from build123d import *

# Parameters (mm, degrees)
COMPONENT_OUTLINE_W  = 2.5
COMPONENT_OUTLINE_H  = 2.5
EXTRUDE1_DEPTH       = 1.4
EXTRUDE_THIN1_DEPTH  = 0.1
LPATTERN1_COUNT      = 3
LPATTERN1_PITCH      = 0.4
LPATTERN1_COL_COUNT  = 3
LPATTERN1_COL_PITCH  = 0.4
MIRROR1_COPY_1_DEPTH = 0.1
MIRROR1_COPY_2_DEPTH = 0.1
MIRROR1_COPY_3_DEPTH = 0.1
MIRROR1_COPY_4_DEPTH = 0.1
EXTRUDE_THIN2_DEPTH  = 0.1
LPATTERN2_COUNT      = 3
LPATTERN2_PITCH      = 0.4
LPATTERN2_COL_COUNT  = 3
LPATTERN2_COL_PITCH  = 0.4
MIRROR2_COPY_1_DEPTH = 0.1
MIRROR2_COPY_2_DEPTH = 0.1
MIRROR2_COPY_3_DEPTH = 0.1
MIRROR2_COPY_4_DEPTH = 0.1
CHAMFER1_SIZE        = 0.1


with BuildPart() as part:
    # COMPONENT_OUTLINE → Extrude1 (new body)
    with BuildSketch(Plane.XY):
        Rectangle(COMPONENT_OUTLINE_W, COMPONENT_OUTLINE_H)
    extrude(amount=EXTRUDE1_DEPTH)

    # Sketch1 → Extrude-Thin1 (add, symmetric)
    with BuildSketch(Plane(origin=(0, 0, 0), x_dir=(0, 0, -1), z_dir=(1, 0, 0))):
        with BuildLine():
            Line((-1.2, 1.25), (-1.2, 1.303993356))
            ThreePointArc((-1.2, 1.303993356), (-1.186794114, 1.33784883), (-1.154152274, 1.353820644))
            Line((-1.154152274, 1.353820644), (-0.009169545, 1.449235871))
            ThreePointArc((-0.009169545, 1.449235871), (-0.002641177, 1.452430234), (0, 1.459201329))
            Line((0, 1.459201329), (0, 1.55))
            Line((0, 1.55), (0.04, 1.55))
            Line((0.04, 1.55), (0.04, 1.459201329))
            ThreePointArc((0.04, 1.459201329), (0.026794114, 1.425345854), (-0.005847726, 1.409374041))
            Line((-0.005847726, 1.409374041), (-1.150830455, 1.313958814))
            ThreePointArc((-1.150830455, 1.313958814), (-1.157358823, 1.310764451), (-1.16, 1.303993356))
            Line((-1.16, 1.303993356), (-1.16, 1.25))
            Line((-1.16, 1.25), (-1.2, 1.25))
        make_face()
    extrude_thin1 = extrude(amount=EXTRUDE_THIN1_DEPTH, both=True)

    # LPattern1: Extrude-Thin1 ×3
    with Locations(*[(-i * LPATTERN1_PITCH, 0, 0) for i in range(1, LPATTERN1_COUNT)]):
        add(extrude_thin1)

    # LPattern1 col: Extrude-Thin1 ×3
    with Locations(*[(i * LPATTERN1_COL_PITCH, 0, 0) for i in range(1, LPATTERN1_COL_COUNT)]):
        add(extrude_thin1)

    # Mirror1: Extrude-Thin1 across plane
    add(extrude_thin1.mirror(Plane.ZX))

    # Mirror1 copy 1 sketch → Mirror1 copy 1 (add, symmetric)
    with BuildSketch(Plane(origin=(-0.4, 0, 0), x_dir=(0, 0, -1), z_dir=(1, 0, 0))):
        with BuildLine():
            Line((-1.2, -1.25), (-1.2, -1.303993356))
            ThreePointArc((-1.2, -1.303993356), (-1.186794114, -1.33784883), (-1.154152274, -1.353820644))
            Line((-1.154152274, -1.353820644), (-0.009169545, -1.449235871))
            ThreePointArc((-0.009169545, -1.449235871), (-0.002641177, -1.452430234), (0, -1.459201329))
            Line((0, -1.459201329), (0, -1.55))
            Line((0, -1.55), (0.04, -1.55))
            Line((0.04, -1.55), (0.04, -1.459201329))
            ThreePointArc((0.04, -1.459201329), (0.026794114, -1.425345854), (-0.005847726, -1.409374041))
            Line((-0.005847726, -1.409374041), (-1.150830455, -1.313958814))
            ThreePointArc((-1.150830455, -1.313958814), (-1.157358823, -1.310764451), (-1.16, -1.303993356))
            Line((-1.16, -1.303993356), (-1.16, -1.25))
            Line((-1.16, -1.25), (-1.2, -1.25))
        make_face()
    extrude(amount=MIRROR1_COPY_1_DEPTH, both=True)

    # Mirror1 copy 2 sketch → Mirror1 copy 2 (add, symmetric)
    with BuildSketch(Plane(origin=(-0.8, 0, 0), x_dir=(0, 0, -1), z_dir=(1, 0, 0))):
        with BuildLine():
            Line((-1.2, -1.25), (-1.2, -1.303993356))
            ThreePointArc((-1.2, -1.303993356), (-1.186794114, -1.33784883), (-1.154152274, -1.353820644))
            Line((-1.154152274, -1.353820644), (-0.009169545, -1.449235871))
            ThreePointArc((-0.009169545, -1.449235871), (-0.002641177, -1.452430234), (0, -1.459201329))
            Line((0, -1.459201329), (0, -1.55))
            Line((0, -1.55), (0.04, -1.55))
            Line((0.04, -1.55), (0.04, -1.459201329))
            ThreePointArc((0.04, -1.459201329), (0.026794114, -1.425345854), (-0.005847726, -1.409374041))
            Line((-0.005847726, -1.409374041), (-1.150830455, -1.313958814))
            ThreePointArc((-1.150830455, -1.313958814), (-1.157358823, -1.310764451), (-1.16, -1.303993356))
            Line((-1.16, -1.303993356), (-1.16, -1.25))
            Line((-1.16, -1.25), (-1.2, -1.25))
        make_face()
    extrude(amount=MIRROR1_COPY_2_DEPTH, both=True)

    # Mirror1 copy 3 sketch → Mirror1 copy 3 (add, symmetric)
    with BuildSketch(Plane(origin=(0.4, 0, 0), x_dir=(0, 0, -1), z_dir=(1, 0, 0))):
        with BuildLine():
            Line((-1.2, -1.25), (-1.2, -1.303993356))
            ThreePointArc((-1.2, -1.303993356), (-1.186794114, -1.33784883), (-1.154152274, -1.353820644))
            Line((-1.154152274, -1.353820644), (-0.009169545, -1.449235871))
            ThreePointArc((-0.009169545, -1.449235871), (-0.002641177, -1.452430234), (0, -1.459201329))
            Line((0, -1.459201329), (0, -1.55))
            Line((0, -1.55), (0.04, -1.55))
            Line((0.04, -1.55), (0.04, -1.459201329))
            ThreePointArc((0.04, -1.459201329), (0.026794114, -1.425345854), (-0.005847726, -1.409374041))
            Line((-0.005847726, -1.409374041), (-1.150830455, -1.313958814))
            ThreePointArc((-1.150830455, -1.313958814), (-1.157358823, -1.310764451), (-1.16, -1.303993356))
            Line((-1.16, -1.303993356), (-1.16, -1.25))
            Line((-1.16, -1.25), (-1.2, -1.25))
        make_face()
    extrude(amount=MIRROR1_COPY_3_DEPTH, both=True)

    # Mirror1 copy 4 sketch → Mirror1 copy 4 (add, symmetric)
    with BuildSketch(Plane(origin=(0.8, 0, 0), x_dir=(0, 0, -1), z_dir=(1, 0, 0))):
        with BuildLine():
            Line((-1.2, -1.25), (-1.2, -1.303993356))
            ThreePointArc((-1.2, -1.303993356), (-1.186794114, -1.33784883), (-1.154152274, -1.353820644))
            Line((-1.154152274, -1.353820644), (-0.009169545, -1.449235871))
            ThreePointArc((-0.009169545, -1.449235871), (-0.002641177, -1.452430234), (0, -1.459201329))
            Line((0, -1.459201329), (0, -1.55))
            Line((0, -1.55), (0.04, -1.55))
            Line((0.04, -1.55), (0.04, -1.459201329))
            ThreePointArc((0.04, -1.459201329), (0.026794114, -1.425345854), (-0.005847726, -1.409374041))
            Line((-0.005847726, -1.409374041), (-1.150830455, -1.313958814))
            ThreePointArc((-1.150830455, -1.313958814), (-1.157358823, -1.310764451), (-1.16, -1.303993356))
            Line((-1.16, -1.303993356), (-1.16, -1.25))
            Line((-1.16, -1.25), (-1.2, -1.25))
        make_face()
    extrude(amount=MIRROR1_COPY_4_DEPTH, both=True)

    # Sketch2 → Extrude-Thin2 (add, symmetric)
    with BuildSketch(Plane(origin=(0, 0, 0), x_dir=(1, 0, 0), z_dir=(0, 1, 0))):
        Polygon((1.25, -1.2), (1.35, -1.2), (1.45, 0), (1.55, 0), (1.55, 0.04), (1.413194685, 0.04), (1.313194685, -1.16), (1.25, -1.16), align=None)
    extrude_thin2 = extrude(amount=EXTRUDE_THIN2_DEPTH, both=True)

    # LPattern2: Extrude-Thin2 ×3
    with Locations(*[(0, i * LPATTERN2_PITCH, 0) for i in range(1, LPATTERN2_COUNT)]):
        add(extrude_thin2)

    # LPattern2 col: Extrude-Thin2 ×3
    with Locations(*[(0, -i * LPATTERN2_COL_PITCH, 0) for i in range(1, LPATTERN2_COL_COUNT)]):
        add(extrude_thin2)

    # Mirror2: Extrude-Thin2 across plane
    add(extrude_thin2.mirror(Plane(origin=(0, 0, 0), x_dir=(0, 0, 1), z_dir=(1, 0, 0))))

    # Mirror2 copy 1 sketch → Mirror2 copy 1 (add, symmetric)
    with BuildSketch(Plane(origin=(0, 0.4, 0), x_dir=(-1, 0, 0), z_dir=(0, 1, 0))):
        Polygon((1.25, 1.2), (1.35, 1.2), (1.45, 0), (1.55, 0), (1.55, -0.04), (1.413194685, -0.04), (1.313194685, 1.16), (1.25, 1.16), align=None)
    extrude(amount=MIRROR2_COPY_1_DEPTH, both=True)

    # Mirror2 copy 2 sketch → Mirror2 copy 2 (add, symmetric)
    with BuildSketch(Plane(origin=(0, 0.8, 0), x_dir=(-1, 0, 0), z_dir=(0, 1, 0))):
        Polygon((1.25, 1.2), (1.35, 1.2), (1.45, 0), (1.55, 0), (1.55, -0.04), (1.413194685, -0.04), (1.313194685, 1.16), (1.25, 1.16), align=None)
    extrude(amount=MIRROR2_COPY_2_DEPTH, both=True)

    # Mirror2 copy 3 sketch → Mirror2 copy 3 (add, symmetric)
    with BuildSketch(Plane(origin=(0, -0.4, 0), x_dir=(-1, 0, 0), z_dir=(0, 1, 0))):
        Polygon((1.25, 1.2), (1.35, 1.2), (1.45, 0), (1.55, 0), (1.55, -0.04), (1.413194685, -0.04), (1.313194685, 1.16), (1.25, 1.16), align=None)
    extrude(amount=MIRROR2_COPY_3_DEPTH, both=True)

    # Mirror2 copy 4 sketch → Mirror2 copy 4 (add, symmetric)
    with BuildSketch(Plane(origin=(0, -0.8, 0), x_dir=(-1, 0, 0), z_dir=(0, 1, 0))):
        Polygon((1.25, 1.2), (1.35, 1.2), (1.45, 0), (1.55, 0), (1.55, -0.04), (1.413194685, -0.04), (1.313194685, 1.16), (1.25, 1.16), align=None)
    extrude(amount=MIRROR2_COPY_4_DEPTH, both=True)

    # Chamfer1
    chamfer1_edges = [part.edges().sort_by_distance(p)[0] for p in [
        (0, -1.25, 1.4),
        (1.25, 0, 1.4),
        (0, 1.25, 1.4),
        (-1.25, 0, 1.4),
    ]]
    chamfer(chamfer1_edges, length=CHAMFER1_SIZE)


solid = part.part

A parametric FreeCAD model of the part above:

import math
import FreeCAD as App
import Part
import Sketcher

V = App.Vector
Q = App.Units.Quantity


def edges_at(feature, points):
    """Names of the edges that pass closest to the given points."""
    edges = feature.Shape.Edges
    near = lambda p: min(range(len(edges)), key=lambda i: edges[i].distToShape(Part.Vertex(*p))[0])
    return sorted({f"Edge{near(p) + 1}" for p in points})

doc = App.newDocument("Part")
body = doc.addObject("PartDesign::Body", "Body")

# Sketch on XY plane
sketch1 = doc.addObject("Sketcher::SketchObject", "Sketch")
body.addObject(sketch1)
sketch1.AttachmentSupport = (doc.XY_Plane, [""])
sketch1.MapMode = "FlatFace"
sketch1.addGeometry(Part.LineSegment(V(-1.25, 1.25, 0), V(-1.25, -1.25, 0)), False)
sketch1.addGeometry(Part.LineSegment(V(-1.25, -1.25, 0), V(1.25, -1.25, 0)), False)
sketch1.addGeometry(Part.LineSegment(V(1.25, -1.25, 0), V(1.25, 1.25, 0)), False)
sketch1.addGeometry(Part.LineSegment(V(1.25, 1.25, 0), V(-1.25, 1.25, 0)), False)
sketch1.addConstraint(Sketcher.Constraint("Coincident", 0, 2, 1, 1))
sketch1.addConstraint(Sketcher.Constraint("Coincident", 1, 2, 2, 1))
sketch1.addConstraint(Sketcher.Constraint("Coincident", 2, 2, 3, 1))
sketch1.addConstraint(Sketcher.Constraint("Coincident", 3, 2, 0, 1))
sketch1.addConstraint(Sketcher.Constraint("Vertical", 0))
sketch1.addConstraint(Sketcher.Constraint("Horizontal", 1))
sketch1.addConstraint(Sketcher.Constraint("Vertical", 2))
sketch1.addConstraint(Sketcher.Constraint("Horizontal", 3))
sketch1.addConstraint(Sketcher.Constraint("Symmetric", 0, 2, 2, 2, -1, 1))
sketch1.addConstraint(Sketcher.Constraint("Equal", 3, 0))
sketch1.addConstraint(Sketcher.Constraint("DistanceX", 1, 1, 1, 2, Q("2.5 mm")))
pad1 = doc.addObject("PartDesign::Pad", "Pad")
body.addObject(pad1)
pad1.Profile = sketch1
pad1.Length = 1.4

# Sketch on YZ plane
sketch2 = doc.addObject("Sketcher::SketchObject", "Sketch001")
body.addObject(sketch2)
sketch2.AttachmentSupport = (doc.YZ_Plane, [""])
sketch2.MapMode = "FlatFace"
sketch2.addGeometry(Part.LineSegment(V(1.303993, 1.2, 0), V(1.25, 1.2, 0)), False)
sketch2.addGeometry(Part.LineSegment(V(1.25, 1.2, 0), V(1.25, 1.16, 0)), False)
sketch2.addGeometry(Part.LineSegment(V(1.25, 1.16, 0), V(1.303993, 1.16, 0)), False)
sketch2.addGeometry(Part.ArcOfCircle(Part.Circle(V(1.303993, 1.15, 0), V(0, 0, 1), 0.01), math.radians(4.763643), math.radians(90)), False)
sketch2.addGeometry(Part.LineSegment(V(1.313959, 1.15083, 0), V(1.409374, 0.005848, 0)), False)
sketch2.addGeometry(Part.ArcOfCircle(Part.Circle(V(1.459201, 0.01, 0), V(0, 0, 1), 0.05), math.radians(-175.236358), math.radians(-90)), False)
sketch2.addGeometry(Part.LineSegment(V(1.459201, -0.04, 0), V(1.55, -0.04, 0)), False)
sketch2.addGeometry(Part.LineSegment(V(1.55, -0.04, 0), V(1.55, 0, 0)), False)
sketch2.addGeometry(Part.LineSegment(V(1.55, 0, 0), V(1.459201, 0, 0)), False)
sketch2.addGeometry(Part.ArcOfCircle(Part.Circle(V(1.459201, 0.01, 0), V(0, 0, 1), 0.01), math.radians(-175.236357), math.radians(-90)), False)
sketch2.addGeometry(Part.LineSegment(V(1.449236, 0.00917, 0), V(1.353821, 1.154152, 0)), False)
sketch2.addGeometry(Part.ArcOfCircle(Part.Circle(V(1.303993, 1.15, 0), V(0, 0, 1), 0.05), math.radians(4.763644), math.radians(89.999999)), False)
sketch2.addConstraint(Sketcher.Constraint("Coincident", 0, 2, 1, 1))
sketch2.addConstraint(Sketcher.Constraint("Coincident", 1, 2, 2, 1))
sketch2.addConstraint(Sketcher.Constraint("Tangent", 2, 2, 3, 2))
sketch2.addConstraint(Sketcher.Constraint("Tangent", 3, 1, 4, 1))
sketch2.addConstraint(Sketcher.Constraint("Tangent", 4, 2, 5, 1))
sketch2.addConstraint(Sketcher.Constraint("Tangent", 5, 2, 6, 1))
sketch2.addConstraint(Sketcher.Constraint("Coincident", 6, 2, 7, 1))
sketch2.addConstraint(Sketcher.Constraint("Coincident", 7, 2, 8, 1))
sketch2.addConstraint(Sketcher.Constraint("Tangent", 8, 2, 9, 2))
sketch2.addConstraint(Sketcher.Constraint("Tangent", 9, 1, 10, 1))
sketch2.addConstraint(Sketcher.Constraint("Tangent", 10, 2, 11, 1))
sketch2.addConstraint(Sketcher.Constraint("Tangent", 11, 2, 0, 1))
sketch2.addConstraint(Sketcher.Constraint("Horizontal", 0))
sketch2.addConstraint(Sketcher.Constraint("Vertical", 1))
sketch2.addConstraint(Sketcher.Constraint("Horizontal", 2))
sketch2.addConstraint(Sketcher.Constraint("Horizontal", 6))
sketch2.addConstraint(Sketcher.Constraint("Vertical", 7))
sketch2.addConstraint(Sketcher.Constraint("Horizontal", 8))
sketch2.addConstraint(Sketcher.Constraint("Coincident", 9, 3, 5, 3))
sketch2.addConstraint(Sketcher.Constraint("Coincident", 11, 3, 3, 3))
sketch2.addConstraint(Sketcher.Constraint("Equal", 3, 9))
sketch2.addConstraint(Sketcher.Constraint("Equal", 5, 11))
sketch2.addConstraint(Sketcher.Constraint("PointOnObject", 7, 2, -1))
sketch2.addConstraint(Sketcher.Constraint("Radius", 3, Q("0.01 mm")))
sketch2.addConstraint(Sketcher.Constraint("Radius", 5, Q("0.05 mm")))
sketch2.addConstraint(Sketcher.Constraint("DistanceY", -1, 1, 0, 2, Q("1.2 mm")))
sketch2.addConstraint(Sketcher.Constraint("DistanceX", -1, 1, 0, 2, Q("1.25 mm")))
sketch2.addConstraint(Sketcher.Constraint("DistanceX", -1, 1, 6, 2, Q("1.55 mm")))
sketch2.addConstraint(Sketcher.Constraint("DistanceX", 6, 1, 6, 2, Q("0.090799 mm")))
sketch2.addConstraint(Sketcher.Constraint("Distance", 4, Q("1.148951 mm")))
pad2 = doc.addObject("PartDesign::Pad", "Pad001")
body.addObject(pad2)
pad2.Profile = sketch2
pad2.Length = 0.2
pad2.Midplane = True
doc.recompute()

linearpattern = doc.addObject("PartDesign::LinearPattern", "LinearPattern")
body.addObject(linearpattern)
linearpattern.Originals = [pad2]
linearpattern.Direction = (doc.X_Axis, [""])
linearpattern.Mode = "offset"
linearpattern.Offset = 0.4
linearpattern.Occurrences = 3
linearpattern.Reversed = True
body.Tip = linearpattern
doc.recompute()

linearpattern2 = doc.addObject("PartDesign::LinearPattern", "LinearPattern001")
body.addObject(linearpattern2)
linearpattern2.Originals = [pad2]
linearpattern2.Direction = (doc.X_Axis, [""])
linearpattern2.Mode = "offset"
linearpattern2.Offset = 0.4
linearpattern2.Occurrences = 3
body.Tip = linearpattern2
doc.recompute()

mirrored = doc.addObject("PartDesign::Mirrored", "Mirrored")
body.addObject(mirrored)
mirrored.Originals = [pad2]
mirrored.MirrorPlane = (doc.XZ_Plane, [""])
body.Tip = mirrored

# Sketch on YZ plane
sketch3 = doc.addObject("Sketcher::SketchObject", "Sketch002")
body.addObject(sketch3)
sketch3.AttachmentSupport = (doc.YZ_Plane, [""])
sketch3.MapMode = "FlatFace"
sketch3.AttachmentOffset = App.Placement(V(0, 0, -0.4), App.Rotation())
sketch3.addGeometry(Part.LineSegment(V(-1.25, 1.2, 0), V(-1.303993, 1.2, 0)), False)
sketch3.addGeometry(Part.ArcOfCircle(Part.Circle(V(-1.303993, 1.15, 0), V(0, 0, 1), 0.05), math.radians(90.000001), math.radians(175.236356)), False)
sketch3.addGeometry(Part.LineSegment(V(-1.353821, 1.154152, 0), V(-1.449236, 0.00917, 0)), False)
sketch3.addGeometry(Part.ArcOfCircle(Part.Circle(V(-1.459201, 0.01, 0), V(0, 0, 1), 0.01), math.radians(-90), math.radians(-4.763643)), False)
sketch3.addGeometry(Part.LineSegment(V(-1.459201, 0, 0), V(-1.55, 0, 0)), False)
sketch3.addGeometry(Part.LineSegment(V(-1.55, 0, 0), V(-1.55, -0.04, 0)), False)
sketch3.addGeometry(Part.LineSegment(V(-1.55, -0.04, 0), V(-1.459201, -0.04, 0)), False)
sketch3.addGeometry(Part.ArcOfCircle(Part.Circle(V(-1.459201, 0.01, 0), V(0, 0, 1), 0.05), math.radians(-90), math.radians(-4.763642)), False)
sketch3.addGeometry(Part.LineSegment(V(-1.409374, 0.005848, 0), V(-1.313959, 1.15083, 0)), False)
sketch3.addGeometry(Part.ArcOfCircle(Part.Circle(V(-1.303993, 1.15, 0), V(0, 0, 1), 0.01), math.radians(90), math.radians(175.236357)), False)
sketch3.addGeometry(Part.LineSegment(V(-1.303993, 1.16, 0), V(-1.25, 1.16, 0)), False)
sketch3.addGeometry(Part.LineSegment(V(-1.25, 1.16, 0), V(-1.25, 1.2, 0)), False)
sketch3.addConstraint(Sketcher.Constraint("Tangent", 0, 2, 1, 1))
sketch3.addConstraint(Sketcher.Constraint("Tangent", 1, 2, 2, 1))
sketch3.addConstraint(Sketcher.Constraint("Tangent", 2, 2, 3, 2))
sketch3.addConstraint(Sketcher.Constraint("Tangent", 3, 1, 4, 1))
sketch3.addConstraint(Sketcher.Constraint("Coincident", 4, 2, 5, 1))
sketch3.addConstraint(Sketcher.Constraint("Coincident", 5, 2, 6, 1))
sketch3.addConstraint(Sketcher.Constraint("Tangent", 6, 2, 7, 1))
sketch3.addConstraint(Sketcher.Constraint("Tangent", 7, 2, 8, 1))
sketch3.addConstraint(Sketcher.Constraint("Tangent", 8, 2, 9, 2))
sketch3.addConstraint(Sketcher.Constraint("Tangent", 9, 1, 10, 1))
sketch3.addConstraint(Sketcher.Constraint("Coincident", 10, 2, 11, 1))
sketch3.addConstraint(Sketcher.Constraint("Coincident", 11, 2, 0, 1))
sketch3.addConstraint(Sketcher.Constraint("Horizontal", 0))
sketch3.addConstraint(Sketcher.Constraint("Horizontal", 4))
sketch3.addConstraint(Sketcher.Constraint("Vertical", 5))
sketch3.addConstraint(Sketcher.Constraint("Horizontal", 6))
sketch3.addConstraint(Sketcher.Constraint("Horizontal", 10))
sketch3.addConstraint(Sketcher.Constraint("Vertical", 11))
sketch3.addConstraint(Sketcher.Constraint("Coincident", 7, 3, 3, 3))
sketch3.addConstraint(Sketcher.Constraint("Coincident", 9, 3, 1, 3))
sketch3.addConstraint(Sketcher.Constraint("Equal", 1, 7))
sketch3.addConstraint(Sketcher.Constraint("Equal", 3, 9))
sketch3.addConstraint(Sketcher.Constraint("PointOnObject", 3, 1, -1))
sketch3.addConstraint(Sketcher.Constraint("Radius", 1, Q("0.05 mm")))
sketch3.addConstraint(Sketcher.Constraint("Radius", 3, Q("0.01 mm")))
sketch3.addConstraint(Sketcher.Constraint("DistanceY", -1, 1, 0, 2, Q("1.2 mm")))
sketch3.addConstraint(Sketcher.Constraint("DistanceX", 4, 2, -1, 1, Q("1.55 mm")))
sketch3.addConstraint(Sketcher.Constraint("DistanceX", 10, 2, -1, 1, Q("1.25 mm")))
sketch3.addConstraint(Sketcher.Constraint("DistanceX", 4, 2, 4, 1, Q("0.090799 mm")))
sketch3.addConstraint(Sketcher.Constraint("Distance", 2, Q("1.148951 mm")))
pad3 = doc.addObject("PartDesign::Pad", "Pad002")
body.addObject(pad3)
pad3.Profile = sketch3
pad3.Length = 0.2
pad3.Midplane = True

# Sketch on YZ plane
sketch4 = doc.addObject("Sketcher::SketchObject", "Sketch003")
body.addObject(sketch4)
sketch4.AttachmentSupport = (doc.YZ_Plane, [""])
sketch4.MapMode = "FlatFace"
sketch4.AttachmentOffset = App.Placement(V(0, 0, -0.8), App.Rotation())
sketch4.addGeometry(Part.LineSegment(V(-1.25, 1.2, 0), V(-1.303993, 1.2, 0)), False)
sketch4.addGeometry(Part.ArcOfCircle(Part.Circle(V(-1.303993, 1.15, 0), V(0, 0, 1), 0.05), math.radians(90.000001), math.radians(175.236356)), False)
sketch4.addGeometry(Part.LineSegment(V(-1.353821, 1.154152, 0), V(-1.449236, 0.00917, 0)), False)
sketch4.addGeometry(Part.ArcOfCircle(Part.Circle(V(-1.459201, 0.01, 0), V(0, 0, 1), 0.01), math.radians(-90), math.radians(-4.763643)), False)
sketch4.addGeometry(Part.LineSegment(V(-1.459201, 0, 0), V(-1.55, 0, 0)), False)
sketch4.addGeometry(Part.LineSegment(V(-1.55, 0, 0), V(-1.55, -0.04, 0)), False)
sketch4.addGeometry(Part.LineSegment(V(-1.55, -0.04, 0), V(-1.459201, -0.04, 0)), False)
sketch4.addGeometry(Part.ArcOfCircle(Part.Circle(V(-1.459201, 0.01, 0), V(0, 0, 1), 0.05), math.radians(-90), math.radians(-4.763642)), False)
sketch4.addGeometry(Part.LineSegment(V(-1.409374, 0.005848, 0), V(-1.313959, 1.15083, 0)), False)
sketch4.addGeometry(Part.ArcOfCircle(Part.Circle(V(-1.303993, 1.15, 0), V(0, 0, 1), 0.01), math.radians(90), math.radians(175.236357)), False)
sketch4.addGeometry(Part.LineSegment(V(-1.303993, 1.16, 0), V(-1.25, 1.16, 0)), False)
sketch4.addGeometry(Part.LineSegment(V(-1.25, 1.16, 0), V(-1.25, 1.2, 0)), False)
sketch4.addConstraint(Sketcher.Constraint("Tangent", 0, 2, 1, 1))
sketch4.addConstraint(Sketcher.Constraint("Tangent", 1, 2, 2, 1))
sketch4.addConstraint(Sketcher.Constraint("Tangent", 2, 2, 3, 2))
sketch4.addConstraint(Sketcher.Constraint("Tangent", 3, 1, 4, 1))
sketch4.addConstraint(Sketcher.Constraint("Coincident", 4, 2, 5, 1))
sketch4.addConstraint(Sketcher.Constraint("Coincident", 5, 2, 6, 1))
sketch4.addConstraint(Sketcher.Constraint("Tangent", 6, 2, 7, 1))
sketch4.addConstraint(Sketcher.Constraint("Tangent", 7, 2, 8, 1))
sketch4.addConstraint(Sketcher.Constraint("Tangent", 8, 2, 9, 2))
sketch4.addConstraint(Sketcher.Constraint("Tangent", 9, 1, 10, 1))
sketch4.addConstraint(Sketcher.Constraint("Coincident", 10, 2, 11, 1))
sketch4.addConstraint(Sketcher.Constraint("Coincident", 11, 2, 0, 1))
sketch4.addConstraint(Sketcher.Constraint("Horizontal", 0))
sketch4.addConstraint(Sketcher.Constraint("Horizontal", 4))
sketch4.addConstraint(Sketcher.Constraint("Vertical", 5))
sketch4.addConstraint(Sketcher.Constraint("Horizontal", 6))
sketch4.addConstraint(Sketcher.Constraint("Horizontal", 10))
sketch4.addConstraint(Sketcher.Constraint("Vertical", 11))
sketch4.addConstraint(Sketcher.Constraint("Coincident", 7, 3, 3, 3))
sketch4.addConstraint(Sketcher.Constraint("Coincident", 9, 3, 1, 3))
sketch4.addConstraint(Sketcher.Constraint("Equal", 1, 7))
sketch4.addConstraint(Sketcher.Constraint("Equal", 3, 9))
sketch4.addConstraint(Sketcher.Constraint("PointOnObject", 3, 1, -1))
sketch4.addConstraint(Sketcher.Constraint("Radius", 1, Q("0.05 mm")))
sketch4.addConstraint(Sketcher.Constraint("Radius", 3, Q("0.01 mm")))
sketch4.addConstraint(Sketcher.Constraint("DistanceY", -1, 1, 0, 2, Q("1.2 mm")))
sketch4.addConstraint(Sketcher.Constraint("DistanceX", 4, 2, -1, 1, Q("1.55 mm")))
sketch4.addConstraint(Sketcher.Constraint("DistanceX", 10, 2, -1, 1, Q("1.25 mm")))
sketch4.addConstraint(Sketcher.Constraint("DistanceX", 4, 2, 4, 1, Q("0.090799 mm")))
sketch4.addConstraint(Sketcher.Constraint("Distance", 2, Q("1.148951 mm")))
pad4 = doc.addObject("PartDesign::Pad", "Pad003")
body.addObject(pad4)
pad4.Profile = sketch4
pad4.Length = 0.2
pad4.Midplane = True

# Sketch on YZ plane
sketch5 = doc.addObject("Sketcher::SketchObject", "Sketch004")
body.addObject(sketch5)
sketch5.AttachmentSupport = (doc.YZ_Plane, [""])
sketch5.MapMode = "FlatFace"
sketch5.AttachmentOffset = App.Placement(V(0, 0, 0.4), App.Rotation())
sketch5.addGeometry(Part.LineSegment(V(-1.25, 1.2, 0), V(-1.303993, 1.2, 0)), False)
sketch5.addGeometry(Part.ArcOfCircle(Part.Circle(V(-1.303993, 1.15, 0), V(0, 0, 1), 0.05), math.radians(90.000001), math.radians(175.236356)), False)
sketch5.addGeometry(Part.LineSegment(V(-1.353821, 1.154152, 0), V(-1.449236, 0.00917, 0)), False)
sketch5.addGeometry(Part.ArcOfCircle(Part.Circle(V(-1.459201, 0.01, 0), V(0, 0, 1), 0.01), math.radians(-90), math.radians(-4.763643)), False)
sketch5.addGeometry(Part.LineSegment(V(-1.459201, 0, 0), V(-1.55, 0, 0)), False)
sketch5.addGeometry(Part.LineSegment(V(-1.55, 0, 0), V(-1.55, -0.04, 0)), False)
sketch5.addGeometry(Part.LineSegment(V(-1.55, -0.04, 0), V(-1.459201, -0.04, 0)), False)
sketch5.addGeometry(Part.ArcOfCircle(Part.Circle(V(-1.459201, 0.01, 0), V(0, 0, 1), 0.05), math.radians(-90), math.radians(-4.763642)), False)
sketch5.addGeometry(Part.LineSegment(V(-1.409374, 0.005848, 0), V(-1.313959, 1.15083, 0)), False)
sketch5.addGeometry(Part.ArcOfCircle(Part.Circle(V(-1.303993, 1.15, 0), V(0, 0, 1), 0.01), math.radians(90), math.radians(175.236357)), False)
sketch5.addGeometry(Part.LineSegment(V(-1.303993, 1.16, 0), V(-1.25, 1.16, 0)), False)
sketch5.addGeometry(Part.LineSegment(V(-1.25, 1.16, 0), V(-1.25, 1.2, 0)), False)
sketch5.addConstraint(Sketcher.Constraint("Tangent", 0, 2, 1, 1))
sketch5.addConstraint(Sketcher.Constraint("Tangent", 1, 2, 2, 1))
sketch5.addConstraint(Sketcher.Constraint("Tangent", 2, 2, 3, 2))
sketch5.addConstraint(Sketcher.Constraint("Tangent", 3, 1, 4, 1))
sketch5.addConstraint(Sketcher.Constraint("Coincident", 4, 2, 5, 1))
sketch5.addConstraint(Sketcher.Constraint("Coincident", 5, 2, 6, 1))
sketch5.addConstraint(Sketcher.Constraint("Tangent", 6, 2, 7, 1))
sketch5.addConstraint(Sketcher.Constraint("Tangent", 7, 2, 8, 1))
sketch5.addConstraint(Sketcher.Constraint("Tangent", 8, 2, 9, 2))
sketch5.addConstraint(Sketcher.Constraint("Tangent", 9, 1, 10, 1))
sketch5.addConstraint(Sketcher.Constraint("Coincident", 10, 2, 11, 1))
sketch5.addConstraint(Sketcher.Constraint("Coincident", 11, 2, 0, 1))
sketch5.addConstraint(Sketcher.Constraint("Horizontal", 0))
sketch5.addConstraint(Sketcher.Constraint("Horizontal", 4))
sketch5.addConstraint(Sketcher.Constraint("Vertical", 5))
sketch5.addConstraint(Sketcher.Constraint("Horizontal", 6))
sketch5.addConstraint(Sketcher.Constraint("Horizontal", 10))
sketch5.addConstraint(Sketcher.Constraint("Vertical", 11))
sketch5.addConstraint(Sketcher.Constraint("Coincident", 7, 3, 3, 3))
sketch5.addConstraint(Sketcher.Constraint("Coincident", 9, 3, 1, 3))
sketch5.addConstraint(Sketcher.Constraint("Equal", 1, 7))
sketch5.addConstraint(Sketcher.Constraint("Equal", 3, 9))
sketch5.addConstraint(Sketcher.Constraint("PointOnObject", 3, 1, -1))
sketch5.addConstraint(Sketcher.Constraint("Radius", 1, Q("0.05 mm")))
sketch5.addConstraint(Sketcher.Constraint("Radius", 3, Q("0.01 mm")))
sketch5.addConstraint(Sketcher.Constraint("DistanceY", -1, 1, 0, 2, Q("1.2 mm")))
sketch5.addConstraint(Sketcher.Constraint("DistanceX", 4, 2, -1, 1, Q("1.55 mm")))
sketch5.addConstraint(Sketcher.Constraint("DistanceX", 10, 2, -1, 1, Q("1.25 mm")))
sketch5.addConstraint(Sketcher.Constraint("DistanceX", 4, 2, 4, 1, Q("0.090799 mm")))
sketch5.addConstraint(Sketcher.Constraint("Distance", 2, Q("1.148951 mm")))
pad5 = doc.addObject("PartDesign::Pad", "Pad004")
body.addObject(pad5)
pad5.Profile = sketch5
pad5.Length = 0.2
pad5.Midplane = True

# Sketch on YZ plane
sketch6 = doc.addObject("Sketcher::SketchObject", "Sketch005")
body.addObject(sketch6)
sketch6.AttachmentSupport = (doc.YZ_Plane, [""])
sketch6.MapMode = "FlatFace"
sketch6.AttachmentOffset = App.Placement(V(0, 0, 0.8), App.Rotation())
sketch6.addGeometry(Part.LineSegment(V(-1.25, 1.2, 0), V(-1.303993, 1.2, 0)), False)
sketch6.addGeometry(Part.ArcOfCircle(Part.Circle(V(-1.303993, 1.15, 0), V(0, 0, 1), 0.05), math.radians(90.000001), math.radians(175.236356)), False)
sketch6.addGeometry(Part.LineSegment(V(-1.353821, 1.154152, 0), V(-1.449236, 0.00917, 0)), False)
sketch6.addGeometry(Part.ArcOfCircle(Part.Circle(V(-1.459201, 0.01, 0), V(0, 0, 1), 0.01), math.radians(-90), math.radians(-4.763643)), False)
sketch6.addGeometry(Part.LineSegment(V(-1.459201, 0, 0), V(-1.55, 0, 0)), False)
sketch6.addGeometry(Part.LineSegment(V(-1.55, 0, 0), V(-1.55, -0.04, 0)), False)
sketch6.addGeometry(Part.LineSegment(V(-1.55, -0.04, 0), V(-1.459201, -0.04, 0)), False)
sketch6.addGeometry(Part.ArcOfCircle(Part.Circle(V(-1.459201, 0.01, 0), V(0, 0, 1), 0.05), math.radians(-90), math.radians(-4.763642)), False)
sketch6.addGeometry(Part.LineSegment(V(-1.409374, 0.005848, 0), V(-1.313959, 1.15083, 0)), False)
sketch6.addGeometry(Part.ArcOfCircle(Part.Circle(V(-1.303993, 1.15, 0), V(0, 0, 1), 0.01), math.radians(90), math.radians(175.236357)), False)
sketch6.addGeometry(Part.LineSegment(V(-1.303993, 1.16, 0), V(-1.25, 1.16, 0)), False)
sketch6.addGeometry(Part.LineSegment(V(-1.25, 1.16, 0), V(-1.25, 1.2, 0)), False)
sketch6.addConstraint(Sketcher.Constraint("Tangent", 0, 2, 1, 1))
sketch6.addConstraint(Sketcher.Constraint("Tangent", 1, 2, 2, 1))
sketch6.addConstraint(Sketcher.Constraint("Tangent", 2, 2, 3, 2))
sketch6.addConstraint(Sketcher.Constraint("Tangent", 3, 1, 4, 1))
sketch6.addConstraint(Sketcher.Constraint("Coincident", 4, 2, 5, 1))
sketch6.addConstraint(Sketcher.Constraint("Coincident", 5, 2, 6, 1))
sketch6.addConstraint(Sketcher.Constraint("Tangent", 6, 2, 7, 1))
sketch6.addConstraint(Sketcher.Constraint("Tangent", 7, 2, 8, 1))
sketch6.addConstraint(Sketcher.Constraint("Tangent", 8, 2, 9, 2))
sketch6.addConstraint(Sketcher.Constraint("Tangent", 9, 1, 10, 1))
sketch6.addConstraint(Sketcher.Constraint("Coincident", 10, 2, 11, 1))
sketch6.addConstraint(Sketcher.Constraint("Coincident", 11, 2, 0, 1))
sketch6.addConstraint(Sketcher.Constraint("Horizontal", 0))
sketch6.addConstraint(Sketcher.Constraint("Horizontal", 4))
sketch6.addConstraint(Sketcher.Constraint("Vertical", 5))
sketch6.addConstraint(Sketcher.Constraint("Horizontal", 6))
sketch6.addConstraint(Sketcher.Constraint("Horizontal", 10))
sketch6.addConstraint(Sketcher.Constraint("Vertical", 11))
sketch6.addConstraint(Sketcher.Constraint("Coincident", 7, 3, 3, 3))
sketch6.addConstraint(Sketcher.Constraint("Coincident", 9, 3, 1, 3))
sketch6.addConstraint(Sketcher.Constraint("Equal", 1, 7))
sketch6.addConstraint(Sketcher.Constraint("Equal", 3, 9))
sketch6.addConstraint(Sketcher.Constraint("PointOnObject", 3, 1, -1))
sketch6.addConstraint(Sketcher.Constraint("Radius", 1, Q("0.05 mm")))
sketch6.addConstraint(Sketcher.Constraint("Radius", 3, Q("0.01 mm")))
sketch6.addConstraint(Sketcher.Constraint("DistanceY", -1, 1, 0, 2, Q("1.2 mm")))
sketch6.addConstraint(Sketcher.Constraint("DistanceX", 4, 2, -1, 1, Q("1.55 mm")))
sketch6.addConstraint(Sketcher.Constraint("DistanceX", 10, 2, -1, 1, Q("1.25 mm")))
sketch6.addConstraint(Sketcher.Constraint("DistanceX", 4, 2, 4, 1, Q("0.090799 mm")))
sketch6.addConstraint(Sketcher.Constraint("Distance", 2, Q("1.148951 mm")))
pad6 = doc.addObject("PartDesign::Pad", "Pad005")
body.addObject(pad6)
pad6.Profile = sketch6
pad6.Length = 0.2
pad6.Midplane = True

# Sketch on XZ plane
sketch7 = doc.addObject("Sketcher::SketchObject", "Sketch006")
body.addObject(sketch7)
sketch7.AttachmentSupport = (doc.XZ_Plane, [""])
sketch7.MapMode = "FlatFace"
sketch7.addGeometry(Part.LineSegment(V(1.25, 1.2, 0), V(1.35, 1.2, 0)), False)
sketch7.addGeometry(Part.LineSegment(V(1.35, 1.2, 0), V(1.45, 0, 0)), False)
sketch7.addGeometry(Part.LineSegment(V(1.45, 0, 0), V(1.55, 0, 0)), False)
sketch7.addGeometry(Part.LineSegment(V(1.55, 0, 0), V(1.55, -0.04, 0)), False)
sketch7.addGeometry(Part.LineSegment(V(1.55, -0.04, 0), V(1.413195, -0.04, 0)), False)
sketch7.addGeometry(Part.LineSegment(V(1.413195, -0.04, 0), V(1.313195, 1.16, 0)), False)
sketch7.addGeometry(Part.LineSegment(V(1.313195, 1.16, 0), V(1.25, 1.16, 0)), False)
sketch7.addGeometry(Part.LineSegment(V(1.25, 1.16, 0), V(1.25, 1.2, 0)), False)
sketch7.addConstraint(Sketcher.Constraint("Coincident", 0, 2, 1, 1))
sketch7.addConstraint(Sketcher.Constraint("Coincident", 1, 2, 2, 1))
sketch7.addConstraint(Sketcher.Constraint("Coincident", 2, 2, 3, 1))
sketch7.addConstraint(Sketcher.Constraint("Coincident", 3, 2, 4, 1))
sketch7.addConstraint(Sketcher.Constraint("Coincident", 4, 2, 5, 1))
sketch7.addConstraint(Sketcher.Constraint("Coincident", 5, 2, 6, 1))
sketch7.addConstraint(Sketcher.Constraint("Coincident", 6, 2, 7, 1))
sketch7.addConstraint(Sketcher.Constraint("Coincident", 7, 2, 0, 1))
sketch7.addConstraint(Sketcher.Constraint("Horizontal", 0))
sketch7.addConstraint(Sketcher.Constraint("Horizontal", 2))
sketch7.addConstraint(Sketcher.Constraint("Vertical", 3))
sketch7.addConstraint(Sketcher.Constraint("Horizontal", 4))
sketch7.addConstraint(Sketcher.Constraint("Horizontal", 6))
sketch7.addConstraint(Sketcher.Constraint("Vertical", 7))
sketch7.addConstraint(Sketcher.Constraint("PointOnObject", 1, 2, -1))
sketch7.addConstraint(Sketcher.Constraint("Parallel", 1, 5))
sketch7.addConstraint(Sketcher.Constraint("Equal", 0, 2))
sketch7.addConstraint(Sketcher.Constraint("Equal", 3, 7))
sketch7.addConstraint(Sketcher.Constraint("DistanceX", 0, 1, 0, 2, Q("0.1 mm")))
sketch7.addConstraint(Sketcher.Constraint("DistanceY", 3, 2, 3, 1, Q("0.04 mm")))
sketch7.addConstraint(Sketcher.Constraint("DistanceY", -1, 1, 0, 2, Q("1.2 mm")))
sketch7.addConstraint(Sketcher.Constraint("DistanceX", 0, 2, 1, 2, Q("0.1 mm")))
sketch7.addConstraint(Sketcher.Constraint("DistanceX", -1, 1, 0, 2, Q("1.35 mm")))
sketch7.addConstraint(Sketcher.Constraint("DistanceX", 4, 2, 4, 1, Q("0.136805 mm")))
pad7 = doc.addObject("PartDesign::Pad", "Pad006")
body.addObject(pad7)
pad7.Profile = sketch7
pad7.Length = 0.2
pad7.Midplane = True
doc.recompute()

linearpattern3 = doc.addObject("PartDesign::LinearPattern", "LinearPattern002")
body.addObject(linearpattern3)
linearpattern3.Originals = [pad7]
linearpattern3.Direction = (doc.Y_Axis, [""])
linearpattern3.Mode = "offset"
linearpattern3.Offset = 0.4
linearpattern3.Occurrences = 3
body.Tip = linearpattern3
doc.recompute()

linearpattern4 = doc.addObject("PartDesign::LinearPattern", "LinearPattern003")
body.addObject(linearpattern4)
linearpattern4.Originals = [pad7]
linearpattern4.Direction = (doc.Y_Axis, [""])
linearpattern4.Mode = "offset"
linearpattern4.Offset = 0.4
linearpattern4.Occurrences = 3
linearpattern4.Reversed = True
body.Tip = linearpattern4
doc.recompute()

mirrored2 = doc.addObject("PartDesign::Mirrored", "Mirrored001")
body.addObject(mirrored2)
mirrored2.Originals = [pad7]
mirrored2.MirrorPlane = (doc.YZ_Plane, [""])
body.Tip = mirrored2

# Sketch on XZ plane
sketch8 = doc.addObject("Sketcher::SketchObject", "Sketch007")
body.addObject(sketch8)
sketch8.AttachmentSupport = (doc.XZ_Plane, [""])
sketch8.MapMode = "FlatFace"
sketch8.AttachmentOffset = App.Placement(V(0, 0, -0.4), App.Rotation())
sketch8.addGeometry(Part.LineSegment(V(-1.35, 1.2, 0), V(-1.25, 1.2, 0)), False)
sketch8.addGeometry(Part.LineSegment(V(-1.25, 1.2, 0), V(-1.25, 1.16, 0)), False)
sketch8.addGeometry(Part.LineSegment(V(-1.25, 1.16, 0), V(-1.313195, 1.16, 0)), False)
sketch8.addGeometry(Part.LineSegment(V(-1.313195, 1.16, 0), V(-1.413195, -0.04, 0)), False)
sketch8.addGeometry(Part.LineSegment(V(-1.413195, -0.04, 0), V(-1.55, -0.04, 0)), False)
sketch8.addGeometry(Part.LineSegment(V(-1.55, -0.04, 0), V(-1.55, 0, 0)), False)
sketch8.addGeometry(Part.LineSegment(V(-1.55, 0, 0), V(-1.45, 0, 0)), False)
sketch8.addGeometry(Part.LineSegment(V(-1.45, 0, 0), V(-1.35, 1.2, 0)), False)
sketch8.addConstraint(Sketcher.Constraint("Coincident", 0, 2, 1, 1))
sketch8.addConstraint(Sketcher.Constraint("Coincident", 1, 2, 2, 1))
sketch8.addConstraint(Sketcher.Constraint("Coincident", 2, 2, 3, 1))
sketch8.addConstraint(Sketcher.Constraint("Coincident", 3, 2, 4, 1))
sketch8.addConstraint(Sketcher.Constraint("Coincident", 4, 2, 5, 1))
sketch8.addConstraint(Sketcher.Constraint("Coincident", 5, 2, 6, 1))
sketch8.addConstraint(Sketcher.Constraint("Coincident", 6, 2, 7, 1))
sketch8.addConstraint(Sketcher.Constraint("Coincident", 7, 2, 0, 1))
sketch8.addConstraint(Sketcher.Constraint("Horizontal", 0))
sketch8.addConstraint(Sketcher.Constraint("Vertical", 1))
sketch8.addConstraint(Sketcher.Constraint("Horizontal", 2))
sketch8.addConstraint(Sketcher.Constraint("Horizontal", 4))
sketch8.addConstraint(Sketcher.Constraint("Vertical", 5))
sketch8.addConstraint(Sketcher.Constraint("Horizontal", 6))
sketch8.addConstraint(Sketcher.Constraint("PointOnObject", 5, 2, -1))
sketch8.addConstraint(Sketcher.Constraint("Parallel", 3, 7))
sketch8.addConstraint(Sketcher.Constraint("Equal", 0, 6))
sketch8.addConstraint(Sketcher.Constraint("Equal", 1, 5))
sketch8.addConstraint(Sketcher.Constraint("DistanceX", 0, 1, 0, 2, Q("0.1 mm")))
sketch8.addConstraint(Sketcher.Constraint("DistanceY", 1, 2, 1, 1, Q("0.04 mm")))
sketch8.addConstraint(Sketcher.Constraint("DistanceY", -1, 1, 0, 2, Q("1.2 mm")))
sketch8.addConstraint(Sketcher.Constraint("DistanceX", 3, 2, 2, 2, Q("0.1 mm")))
sketch8.addConstraint(Sketcher.Constraint("DistanceX", 0, 2, -1, 1, Q("1.25 mm")))
sketch8.addConstraint(Sketcher.Constraint("DistanceX", 2, 2, 2, 1, Q("0.063195 mm")))
pad8 = doc.addObject("PartDesign::Pad", "Pad007")
body.addObject(pad8)
pad8.Profile = sketch8
pad8.Length = 0.2
pad8.Midplane = True

# Sketch on XZ plane
sketch9 = doc.addObject("Sketcher::SketchObject", "Sketch008")
body.addObject(sketch9)
sketch9.AttachmentSupport = (doc.XZ_Plane, [""])
sketch9.MapMode = "FlatFace"
sketch9.AttachmentOffset = App.Placement(V(0, 0, -0.8), App.Rotation())
sketch9.addGeometry(Part.LineSegment(V(-1.35, 1.2, 0), V(-1.25, 1.2, 0)), False)
sketch9.addGeometry(Part.LineSegment(V(-1.25, 1.2, 0), V(-1.25, 1.16, 0)), False)
sketch9.addGeometry(Part.LineSegment(V(-1.25, 1.16, 0), V(-1.313195, 1.16, 0)), False)
sketch9.addGeometry(Part.LineSegment(V(-1.313195, 1.16, 0), V(-1.413195, -0.04, 0)), False)
sketch9.addGeometry(Part.LineSegment(V(-1.413195, -0.04, 0), V(-1.55, -0.04, 0)), False)
sketch9.addGeometry(Part.LineSegment(V(-1.55, -0.04, 0), V(-1.55, 0, 0)), False)
sketch9.addGeometry(Part.LineSegment(V(-1.55, 0, 0), V(-1.45, 0, 0)), False)
sketch9.addGeometry(Part.LineSegment(V(-1.45, 0, 0), V(-1.35, 1.2, 0)), False)
sketch9.addConstraint(Sketcher.Constraint("Coincident", 0, 2, 1, 1))
sketch9.addConstraint(Sketcher.Constraint("Coincident", 1, 2, 2, 1))
sketch9.addConstraint(Sketcher.Constraint("Coincident", 2, 2, 3, 1))
sketch9.addConstraint(Sketcher.Constraint("Coincident", 3, 2, 4, 1))
sketch9.addConstraint(Sketcher.Constraint("Coincident", 4, 2, 5, 1))
sketch9.addConstraint(Sketcher.Constraint("Coincident", 5, 2, 6, 1))
sketch9.addConstraint(Sketcher.Constraint("Coincident", 6, 2, 7, 1))
sketch9.addConstraint(Sketcher.Constraint("Coincident", 7, 2, 0, 1))
sketch9.addConstraint(Sketcher.Constraint("Horizontal", 0))
sketch9.addConstraint(Sketcher.Constraint("Vertical", 1))
sketch9.addConstraint(Sketcher.Constraint("Horizontal", 2))
sketch9.addConstraint(Sketcher.Constraint("Horizontal", 4))
sketch9.addConstraint(Sketcher.Constraint("Vertical", 5))
sketch9.addConstraint(Sketcher.Constraint("Horizontal", 6))
sketch9.addConstraint(Sketcher.Constraint("PointOnObject", 5, 2, -1))
sketch9.addConstraint(Sketcher.Constraint("Parallel", 3, 7))
sketch9.addConstraint(Sketcher.Constraint("Equal", 0, 6))
sketch9.addConstraint(Sketcher.Constraint("Equal", 1, 5))
sketch9.addConstraint(Sketcher.Constraint("DistanceX", 0, 1, 0, 2, Q("0.1 mm")))
sketch9.addConstraint(Sketcher.Constraint("DistanceY", 1, 2, 1, 1, Q("0.04 mm")))
sketch9.addConstraint(Sketcher.Constraint("DistanceY", -1, 1, 0, 2, Q("1.2 mm")))
sketch9.addConstraint(Sketcher.Constraint("DistanceX", 3, 2, 2, 2, Q("0.1 mm")))
sketch9.addConstraint(Sketcher.Constraint("DistanceX", 0, 2, -1, 1, Q("1.25 mm")))
sketch9.addConstraint(Sketcher.Constraint("DistanceX", 2, 2, 2, 1, Q("0.063195 mm")))
pad9 = doc.addObject("PartDesign::Pad", "Pad008")
body.addObject(pad9)
pad9.Profile = sketch9
pad9.Length = 0.2
pad9.Midplane = True

# Sketch on XZ plane
sketch10 = doc.addObject("Sketcher::SketchObject", "Sketch009")
body.addObject(sketch10)
sketch10.AttachmentSupport = (doc.XZ_Plane, [""])
sketch10.MapMode = "FlatFace"
sketch10.AttachmentOffset = App.Placement(V(0, 0, 0.4), App.Rotation())
sketch10.addGeometry(Part.LineSegment(V(-1.35, 1.2, 0), V(-1.25, 1.2, 0)), False)
sketch10.addGeometry(Part.LineSegment(V(-1.25, 1.2, 0), V(-1.25, 1.16, 0)), False)
sketch10.addGeometry(Part.LineSegment(V(-1.25, 1.16, 0), V(-1.313195, 1.16, 0)), False)
sketch10.addGeometry(Part.LineSegment(V(-1.313195, 1.16, 0), V(-1.413195, -0.04, 0)), False)
sketch10.addGeometry(Part.LineSegment(V(-1.413195, -0.04, 0), V(-1.55, -0.04, 0)), False)
sketch10.addGeometry(Part.LineSegment(V(-1.55, -0.04, 0), V(-1.55, 0, 0)), False)
sketch10.addGeometry(Part.LineSegment(V(-1.55, 0, 0), V(-1.45, 0, 0)), False)
sketch10.addGeometry(Part.LineSegment(V(-1.45, 0, 0), V(-1.35, 1.2, 0)), False)
sketch10.addConstraint(Sketcher.Constraint("Coincident", 0, 2, 1, 1))
sketch10.addConstraint(Sketcher.Constraint("Coincident", 1, 2, 2, 1))
sketch10.addConstraint(Sketcher.Constraint("Coincident", 2, 2, 3, 1))
sketch10.addConstraint(Sketcher.Constraint("Coincident", 3, 2, 4, 1))
sketch10.addConstraint(Sketcher.Constraint("Coincident", 4, 2, 5, 1))
sketch10.addConstraint(Sketcher.Constraint("Coincident", 5, 2, 6, 1))
sketch10.addConstraint(Sketcher.Constraint("Coincident", 6, 2, 7, 1))
sketch10.addConstraint(Sketcher.Constraint("Coincident", 7, 2, 0, 1))
sketch10.addConstraint(Sketcher.Constraint("Horizontal", 0))
sketch10.addConstraint(Sketcher.Constraint("Vertical", 1))
sketch10.addConstraint(Sketcher.Constraint("Horizontal", 2))
sketch10.addConstraint(Sketcher.Constraint("Horizontal", 4))
sketch10.addConstraint(Sketcher.Constraint("Vertical", 5))
sketch10.addConstraint(Sketcher.Constraint("Horizontal", 6))
sketch10.addConstraint(Sketcher.Constraint("PointOnObject", 5, 2, -1))
sketch10.addConstraint(Sketcher.Constraint("Parallel", 3, 7))
sketch10.addConstraint(Sketcher.Constraint("Equal", 0, 6))
sketch10.addConstraint(Sketcher.Constraint("Equal", 1, 5))
sketch10.addConstraint(Sketcher.Constraint("DistanceX", 0, 1, 0, 2, Q("0.1 mm")))
sketch10.addConstraint(Sketcher.Constraint("DistanceY", 1, 2, 1, 1, Q("0.04 mm")))
sketch10.addConstraint(Sketcher.Constraint("DistanceY", -1, 1, 0, 2, Q("1.2 mm")))
sketch10.addConstraint(Sketcher.Constraint("DistanceX", 3, 2, 2, 2, Q("0.1 mm")))
sketch10.addConstraint(Sketcher.Constraint("DistanceX", 0, 2, -1, 1, Q("1.25 mm")))
sketch10.addConstraint(Sketcher.Constraint("DistanceX", 2, 2, 2, 1, Q("0.063195 mm")))
pad10 = doc.addObject("PartDesign::Pad", "Pad009")
body.addObject(pad10)
pad10.Profile = sketch10
pad10.Length = 0.2
pad10.Midplane = True

# Sketch on XZ plane
sketch11 = doc.addObject("Sketcher::SketchObject", "Sketch010")
body.addObject(sketch11)
sketch11.AttachmentSupport = (doc.XZ_Plane, [""])
sketch11.MapMode = "FlatFace"
sketch11.AttachmentOffset = App.Placement(V(0, 0, 0.8), App.Rotation())
sketch11.addGeometry(Part.LineSegment(V(-1.35, 1.2, 0), V(-1.25, 1.2, 0)), False)
sketch11.addGeometry(Part.LineSegment(V(-1.25, 1.2, 0), V(-1.25, 1.16, 0)), False)
sketch11.addGeometry(Part.LineSegment(V(-1.25, 1.16, 0), V(-1.313195, 1.16, 0)), False)
sketch11.addGeometry(Part.LineSegment(V(-1.313195, 1.16, 0), V(-1.413195, -0.04, 0)), False)
sketch11.addGeometry(Part.LineSegment(V(-1.413195, -0.04, 0), V(-1.55, -0.04, 0)), False)
sketch11.addGeometry(Part.LineSegment(V(-1.55, -0.04, 0), V(-1.55, 0, 0)), False)
sketch11.addGeometry(Part.LineSegment(V(-1.55, 0, 0), V(-1.45, 0, 0)), False)
sketch11.addGeometry(Part.LineSegment(V(-1.45, 0, 0), V(-1.35, 1.2, 0)), False)
sketch11.addConstraint(Sketcher.Constraint("Coincident", 0, 2, 1, 1))
sketch11.addConstraint(Sketcher.Constraint("Coincident", 1, 2, 2, 1))
sketch11.addConstraint(Sketcher.Constraint("Coincident", 2, 2, 3, 1))
sketch11.addConstraint(Sketcher.Constraint("Coincident", 3, 2, 4, 1))
sketch11.addConstraint(Sketcher.Constraint("Coincident", 4, 2, 5, 1))
sketch11.addConstraint(Sketcher.Constraint("Coincident", 5, 2, 6, 1))
sketch11.addConstraint(Sketcher.Constraint("Coincident", 6, 2, 7, 1))
sketch11.addConstraint(Sketcher.Constraint("Coincident", 7, 2, 0, 1))
sketch11.addConstraint(Sketcher.Constraint("Horizontal", 0))
sketch11.addConstraint(Sketcher.Constraint("Vertical", 1))
sketch11.addConstraint(Sketcher.Constraint("Horizontal", 2))
sketch11.addConstraint(Sketcher.Constraint("Horizontal", 4))
sketch11.addConstraint(Sketcher.Constraint("Vertical", 5))
sketch11.addConstraint(Sketcher.Constraint("Horizontal", 6))
sketch11.addConstraint(Sketcher.Constraint("PointOnObject", 5, 2, -1))
sketch11.addConstraint(Sketcher.Constraint("Parallel", 3, 7))
sketch11.addConstraint(Sketcher.Constraint("Equal", 0, 6))
sketch11.addConstraint(Sketcher.Constraint("Equal", 1, 5))
sketch11.addConstraint(Sketcher.Constraint("DistanceX", 0, 1, 0, 2, Q("0.1 mm")))
sketch11.addConstraint(Sketcher.Constraint("DistanceY", 1, 2, 1, 1, Q("0.04 mm")))
sketch11.addConstraint(Sketcher.Constraint("DistanceY", -1, 1, 0, 2, Q("1.2 mm")))
sketch11.addConstraint(Sketcher.Constraint("DistanceX", 3, 2, 2, 2, Q("0.1 mm")))
sketch11.addConstraint(Sketcher.Constraint("DistanceX", 0, 2, -1, 1, Q("1.25 mm")))
sketch11.addConstraint(Sketcher.Constraint("DistanceX", 2, 2, 2, 1, Q("0.063195 mm")))
pad11 = doc.addObject("PartDesign::Pad", "Pad010")
body.addObject(pad11)
pad11.Profile = sketch11
pad11.Length = 0.2
pad11.Midplane = True
doc.recompute()

chamfer = doc.addObject("PartDesign::Chamfer", "Chamfer")
body.addObject(chamfer)
chamfer.Base = (pad11, edges_at(pad11, [
    (0, -1.25, 1.4),
    (1.25, 0, 1.4),
    (0, 1.25, 1.4),
    (-1.25, 0, 1.4),
]))
chamfer.Size = 0.1

doc.recompute()
